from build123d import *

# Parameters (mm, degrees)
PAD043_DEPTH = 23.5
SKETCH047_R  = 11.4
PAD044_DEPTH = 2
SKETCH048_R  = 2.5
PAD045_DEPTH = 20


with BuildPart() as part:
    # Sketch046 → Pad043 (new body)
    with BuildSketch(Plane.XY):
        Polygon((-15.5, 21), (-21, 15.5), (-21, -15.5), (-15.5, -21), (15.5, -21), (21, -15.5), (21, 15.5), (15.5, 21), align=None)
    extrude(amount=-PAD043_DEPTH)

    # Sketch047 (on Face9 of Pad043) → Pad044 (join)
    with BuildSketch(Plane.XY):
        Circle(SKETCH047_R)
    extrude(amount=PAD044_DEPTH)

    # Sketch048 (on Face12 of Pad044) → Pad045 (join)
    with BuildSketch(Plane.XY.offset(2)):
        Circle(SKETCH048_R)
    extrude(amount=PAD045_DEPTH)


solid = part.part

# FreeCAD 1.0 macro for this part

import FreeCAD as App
import Part
import Sketcher
from FreeCAD import Vector
Q = App.Units.Quantity


def add_polygon(sketch, points):
    """Adds a closed chain of lines whose ends are joined by coincident constraints."""
    first, n = sketch.GeometryCount, len(points)
    for a, b in zip(points, points[1:] + points[:1]):
        sketch.addGeometry(Part.LineSegment(App.Vector(*a, 0), App.Vector(*b, 0)), False)
    for i in range(n):
        sketch.addConstraint(Sketcher.Constraint("Coincident", first + i, 2, first + (i + 1) % n, 1))

doc = App.newDocument("Part")
body = doc.addObject("PartDesign::Body", "Body")

sketch1 = body.newObject("Sketcher::SketchObject", "Sketch")
sketch1.AttachmentSupport = (doc.getObject("XY_Plane"), [""])
sketch1.MapMode = "FlatFace"
add_polygon(sketch1, [(-16, 21), (-21, 16), (-21, -16), (-16, -21), (16, -21), (21, -16), (21, 16), (16, 21)])
sketch1.addConstraint(Sketcher.Constraint("Vertical", 1))
sketch1.addConstraint(Sketcher.Constraint("Horizontal", 3))
sketch1.addConstraint(Sketcher.Constraint("Vertical", 5))
sketch1.addConstraint(Sketcher.Constraint("Horizontal", 7))
sketch1.addConstraint(Sketcher.Constraint("Symmetric", 0, 2, 4, 2, -1, 1))
sketch1.addConstraint(Sketcher.Constraint("Symmetric", 2, 2, 6, 2, -1, 1))
sketch1.addConstraint(Sketcher.Constraint("Perpendicular", 0, 2))
sketch1.addConstraint(Sketcher.Constraint("Perpendicular", 2, 4))
sketch1.addConstraint(Sketcher.Constraint("Perpendicular", 4, 6))
sketch1.addConstraint(Sketcher.Constraint("Horizontal", 1, 2, 4, 2))
sketch1.addConstraint(Sketcher.Constraint("Vertical", 3, 2, 6, 2))
sketch1.addConstraint(Sketcher.Constraint("Equal", 7, 1))
sketch1.addConstraint(Sketcher.Constraint("DistanceX", 3, 1, 3, 2, Q("31 mm")))
sketch1.addConstraint(Sketcher.Constraint("DistanceX", 0, 2, -1, 1, Q("21 mm")))
pad1 = body.newObject("PartDesign::Pad", "Pad")
pad1.Profile = sketch1
pad1.Length = 23.5
pad1.Reversed = True

sketch2 = body.newObject("Sketcher::SketchObject", "Sketch001")
sketch2.AttachmentSupport = (doc.getObject("XY_Plane"), [""])
sketch2.MapMode = "FlatFace"
sketch2.addGeometry(Part.Circle(Vector(0, 0, 0), Vector(0, 0, 1), 11), False)
sketch2.addConstraint(Sketcher.Constraint("Coincident", 0, 3, -1, 1))
sketch2.addConstraint(Sketcher.Constraint("Diameter", 0, Q("22.8 mm")))
pad2 = body.newObject("PartDesign::Pad", "Pad001")
pad2.Profile = sketch2
pad2.Length = 2

sketch3 = body.newObject("Sketcher::SketchObject", "Sketch002")
sketch3.AttachmentSupport = (doc.getObject("XY_Plane"), [""])
sketch3.MapMode = "FlatFace"
sketch3.AttachmentOffset = App.Placement(Vector(0, 0, 2), App.Rotation())
sketch3.addGeometry(Part.Circle(Vector(0, 0, 0), Vector(0, 0, 1), 2.5), False)
sketch3.addConstraint(Sketcher.Constraint("Coincident", 0, 3, -1, 1))
sketch3.addConstraint(Sketcher.Constraint("Diameter", 0, Q("5 mm")))
pad3 = body.newObject("PartDesign::Pad", "Pad002")
pad3.Profile = sketch3
pad3.Length = 20

doc.recompute()
